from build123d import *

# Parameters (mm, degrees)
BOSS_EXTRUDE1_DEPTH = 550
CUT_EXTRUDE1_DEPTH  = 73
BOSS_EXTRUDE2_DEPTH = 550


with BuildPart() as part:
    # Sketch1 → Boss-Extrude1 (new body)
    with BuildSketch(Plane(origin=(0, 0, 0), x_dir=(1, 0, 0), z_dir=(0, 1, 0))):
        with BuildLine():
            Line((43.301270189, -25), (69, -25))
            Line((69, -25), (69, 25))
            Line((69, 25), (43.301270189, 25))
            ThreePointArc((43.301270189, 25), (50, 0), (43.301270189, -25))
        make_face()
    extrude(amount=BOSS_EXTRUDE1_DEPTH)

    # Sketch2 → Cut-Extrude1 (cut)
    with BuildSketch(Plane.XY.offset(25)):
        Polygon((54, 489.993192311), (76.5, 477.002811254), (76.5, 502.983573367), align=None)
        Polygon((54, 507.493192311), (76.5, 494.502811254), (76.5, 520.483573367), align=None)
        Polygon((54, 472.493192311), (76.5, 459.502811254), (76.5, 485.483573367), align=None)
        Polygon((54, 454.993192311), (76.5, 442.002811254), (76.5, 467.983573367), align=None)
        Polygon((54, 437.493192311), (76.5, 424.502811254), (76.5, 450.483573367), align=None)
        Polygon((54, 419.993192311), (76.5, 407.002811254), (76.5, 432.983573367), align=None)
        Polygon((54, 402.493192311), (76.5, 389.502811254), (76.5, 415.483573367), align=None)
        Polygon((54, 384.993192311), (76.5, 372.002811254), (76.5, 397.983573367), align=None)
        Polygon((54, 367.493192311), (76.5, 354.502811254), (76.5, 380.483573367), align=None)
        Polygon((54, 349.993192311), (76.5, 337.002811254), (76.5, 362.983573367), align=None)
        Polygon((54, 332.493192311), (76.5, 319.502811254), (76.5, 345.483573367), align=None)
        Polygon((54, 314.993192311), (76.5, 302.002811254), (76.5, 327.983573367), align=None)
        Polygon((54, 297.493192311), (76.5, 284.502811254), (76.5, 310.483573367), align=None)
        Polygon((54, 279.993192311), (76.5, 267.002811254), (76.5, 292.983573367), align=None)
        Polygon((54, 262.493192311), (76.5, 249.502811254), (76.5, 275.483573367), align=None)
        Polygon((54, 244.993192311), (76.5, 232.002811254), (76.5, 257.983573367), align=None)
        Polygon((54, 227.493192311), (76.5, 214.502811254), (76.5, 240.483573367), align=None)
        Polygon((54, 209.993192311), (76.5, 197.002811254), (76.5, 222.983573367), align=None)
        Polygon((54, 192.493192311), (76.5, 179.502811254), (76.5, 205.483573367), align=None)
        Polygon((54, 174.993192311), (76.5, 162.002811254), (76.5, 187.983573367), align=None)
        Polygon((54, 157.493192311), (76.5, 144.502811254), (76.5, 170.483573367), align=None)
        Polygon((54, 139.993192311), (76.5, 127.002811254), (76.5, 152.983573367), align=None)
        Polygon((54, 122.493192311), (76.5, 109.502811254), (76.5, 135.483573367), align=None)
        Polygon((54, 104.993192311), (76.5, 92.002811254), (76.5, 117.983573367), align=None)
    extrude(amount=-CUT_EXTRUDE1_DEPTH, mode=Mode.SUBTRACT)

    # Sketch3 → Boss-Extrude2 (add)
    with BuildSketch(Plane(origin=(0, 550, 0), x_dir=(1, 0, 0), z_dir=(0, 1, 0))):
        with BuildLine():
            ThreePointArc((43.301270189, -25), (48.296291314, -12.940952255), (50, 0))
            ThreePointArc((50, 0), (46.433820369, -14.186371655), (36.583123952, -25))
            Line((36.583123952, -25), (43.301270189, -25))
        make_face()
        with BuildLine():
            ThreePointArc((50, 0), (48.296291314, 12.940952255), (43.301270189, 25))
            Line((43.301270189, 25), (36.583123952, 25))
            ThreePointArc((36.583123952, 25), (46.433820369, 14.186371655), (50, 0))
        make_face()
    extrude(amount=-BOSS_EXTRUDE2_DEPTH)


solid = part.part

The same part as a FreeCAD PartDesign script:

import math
import FreeCAD as App
import Part
import Sketcher
from FreeCAD import Vector
Q = App.Units.Quantity


def add_polygon(sketch, points):
    """Adds a closed chain of lines whose ends are joined by coincident constraints."""
    first, n = sketch.GeometryCount, len(points)
    for a, b in zip(points, points[1:] + points[:1]):
        sketch.addGeometry(Part.LineSegment(App.Vector(*a, 0), App.Vector(*b, 0)), False)
    for i in range(n):
        sketch.addConstraint(Sketcher.Constraint("Coincident", first + i, 2, first + (i + 1) % n, 1))

doc = App.newDocument("Part")
params = doc.addObject("Spreadsheet::Sheet", "Params")
for row, (alias, value) in enumerate([
    ("sketch1_radius", "50 mm"),
    ("sketch1_height", "50 mm"),
    ("pad1_length", "550 mm"),
    ("pocket1_length", "73 mm"),
    ("sketch3_radius", "50 mm"),
    ("sketch3_radius2", "30 mm"),
    ("pad2_length", "550 mm"),
], start=1):
    params.set(f"A{row}", alias)
    params.set(f"B{row}", "=" + value)
    params.setAlias(f"B{row}", alias)

body = doc.addObject("PartDesign::Body", "Body")

sketch1 = doc.addObject("Sketcher::SketchObject", "Sketch")
body.addObject(sketch1)
sketch1.AttachmentSupport = (doc.XZ_Plane, [""])
sketch1.MapMode = "FlatFace"
sketch1.addGeometry([
    Part.LineSegment(Vector(43, 25, 0), Vector(69, 25, 0)),
    Part.LineSegment(Vector(69, 25, 0), Vector(69, -25, 0)),
    Part.LineSegment(Vector(69, -25, 0), Vector(43, -25, 0)),
    Part.ArcOfCircle(Part.Circle(Vector(0, 0, 0), Vector(0, 0, 1), 50), math.radians(-30), math.radians(30)),
], False)
sketch1.addConstraint([
    Sketcher.Constraint("Coincident", 0, 2, 1, 1),
    Sketcher.Constraint("Coincident", 1, 2, 2, 1),
    Sketcher.Constraint("Coincident", 2, 2, 3, 1),
    Sketcher.Constraint("Coincident", 3, 2, 0, 1),
    Sketcher.Constraint("Horizontal", 0),
    Sketcher.Constraint("Vertical", 1),
    Sketcher.Constraint("Horizontal", 2),
    Sketcher.Constraint("Coincident", 3, 3, -1, 1),
    Sketcher.Constraint("Vertical", 2, 2, 3, 2),
    Sketcher.Constraint("Radius", 3, Q("50 mm")),
    Sketcher.Constraint("DistanceY", 1, 2, 1, 1, Q("50 mm")),
    Sketcher.Constraint("DistanceX", -1, 1, 0, 2, Q("69 mm")),
])
sketch1.setExpression("Constraints[9]", "Params.sketch1_radius")
sketch1.setExpression("Constraints[10]", "Params.sketch1_height")
pad1 = doc.addObject("PartDesign::Pad", "Pad")
body.addObject(pad1)
pad1.Profile = sketch1
pad1.setExpression("Length", "Params.pad1_length")
pad1.Reversed = True

sketch2 = doc.addObject("Sketcher::SketchObject", "Sketch001")
body.addObject(sketch2)
sketch2.AttachmentSupport = (doc.XY_Plane, [""])
sketch2.MapMode = "FlatFace"
sketch2.AttachmentOffset = App.Placement(Vector(0, 0, 25), App.Rotation())
add_polygon(sketch2, [(76, 520), (54, 507), (69, 499), (54, 490), (69, 481), (54, 472), (69, 464), (54, 455), (69, 446), (54, 437), (69, 429), (54, 420), (69, 411), (54, 402), (69, 394), (54, 385), (69, 376), (54, 367), (69, 359), (54, 350), (69, 341), (54, 332), (69, 324), (54, 315), (69, 306), (54, 297), (69, 289), (54, 280), (69, 271), (54, 262), (69, 254), (54, 245), (69, 236), (54, 227), (69, 219), (54, 210), (69, 201), (54, 192), (69, 184), (54, 175), (69, 166), (54, 157), (69, 149), (54, 140), (69, 131), (54, 122), (69, 114), (54, 105), (76, 92)])
sketch2.addConstraint([
    Sketcher.Constraint("Vertical", 48),
    Sketcher.Constraint("Parallel", 0, 2),
    Sketcher.Constraint("Parallel", 1, 3),
    Sketcher.Constraint("Parallel", 2, 4),
    Sketcher.Constraint("Parallel", 3, 5),
    Sketcher.Constraint("Parallel", 4, 6),
    Sketcher.Constraint("Parallel", 5, 7),
    Sketcher.Constraint("Parallel", 6, 8),
    Sketcher.Constraint("Parallel", 7, 9),
    Sketcher.Constraint("Parallel", 8, 10),
    Sketcher.Constraint("Parallel", 9, 11),
    Sketcher.Constraint("Parallel", 10, 12),
    Sketcher.Constraint("Parallel", 11, 13),
    Sketcher.Constraint("Parallel", 12, 14),
    Sketcher.Constraint("Parallel", 13, 15),
    Sketcher.Constraint("Parallel", 14, 16),
    Sketcher.Constraint("Parallel", 15, 17),
    Sketcher.Constraint("Parallel", 16, 18),
    Sketcher.Constraint("Parallel", 17, 19),
    Sketcher.Constraint("Parallel", 18, 20),
    Sketcher.Constraint("Parallel", 19, 21),
    Sketcher.Constraint("Parallel", 20, 22),
    Sketcher.Constraint("Parallel", 21, 23),
    Sketcher.Constraint("Parallel", 22, 24),
    Sketcher.Constraint("Parallel", 23, 25),
    Sketcher.Constraint("Parallel", 24, 26),
    Sketcher.Constraint("Parallel", 25, 27),
    Sketcher.Constraint("Parallel", 26, 28),
    Sketcher.Constraint("Parallel", 27, 29),
    Sketcher.Constraint("Parallel", 28, 30),
    Sketcher.Constraint("Parallel", 29, 31),
    Sketcher.Constraint("Parallel", 30, 32),
    Sketcher.Constraint("Parallel", 31, 33),
    Sketcher.Constraint("Parallel", 32, 34),
    Sketcher.Constraint("Parallel", 33, 35),
    Sketcher.Constraint("Parallel", 34, 36),
    Sketcher.Constraint("Parallel", 35, 37),
    Sketcher.Constraint("Parallel", 36, 38),
    Sketcher.Constraint("Parallel", 37, 39),
    Sketcher.Constraint("Parallel", 38, 40),
    Sketcher.Constraint("Parallel", 39, 41),
    Sketcher.Constraint("Parallel", 40, 42),
    Sketcher.Constraint("Parallel", 41, 43),
    Sketcher.Constraint("Parallel", 42, 44),
    Sketcher.Constraint("Parallel", 43, 45),
    Sketcher.Constraint("Parallel", 44, 46),
    Sketcher.Constraint("Parallel", 45, 47),
    Sketcher.Constraint("Vertical", 0, 2, 2, 2),
    Sketcher.Constraint("Vertical", 1, 2, 3, 2),
    Sketcher.Constraint("Vertical", 2, 2, 4, 2),
    Sketcher.Constraint("Vertical", 3, 2, 5, 2),
    Sketcher.Constraint("Vertical", 4, 2, 6, 2),
    Sketcher.Constraint("Vertical", 5, 2, 7, 2),
    Sketcher.Constraint("Vertical", 6, 2, 8, 2),
    Sketcher.Constraint("Vertical", 7, 2, 9, 2),
    Sketcher.Constraint("Vertical", 8, 2, 10, 2),
    Sketcher.Constraint("Vertical", 9, 2, 11, 2),
    Sketcher.Constraint("Vertical", 10, 2, 12, 2),
    Sketcher.Constraint("Vertical", 11, 2, 13, 2),
    Sketcher.Constraint("Vertical", 12, 2, 14, 2),
    Sketcher.Constraint("Vertical", 13, 2, 15, 2),
    Sketcher.Constraint("Vertical", 14, 2, 16, 2),
    Sketcher.Constraint("Vertical", 15, 2, 17, 2),
    Sketcher.Constraint("Vertical", 16, 2, 18, 2),
    Sketcher.Constraint("Vertical", 17, 2, 19, 2),
    Sketcher.Constraint("Vertical", 18, 2, 20, 2),
    Sketcher.Constraint("Vertical", 19, 2, 21, 2),
    Sketcher.Constraint("Vertical", 20, 2, 22, 2),
    Sketcher.Constraint("Vertical", 21, 2, 23, 2),
    Sketcher.Constraint("Vertical", 22, 2, 24, 2),
    Sketcher.Constraint("Vertical", 23, 2, 25, 2),
    Sketcher.Constraint("Vertical", 24, 2, 26, 2),
    Sketcher.Constraint("Vertical", 25, 2, 27, 2),
    Sketcher.Constraint("Vertical", 26, 2, 28, 2),
    Sketcher.Constraint("Vertical", 27, 2, 29, 2),
    Sketcher.Constraint("Vertical", 28, 2, 30, 2),
    Sketcher.Constraint("Vertical", 29, 2, 31, 2),
    Sketcher.Constraint("Vertical", 30, 2, 32, 2),
    Sketcher.Constraint("Vertical", 31, 2, 33, 2),
    Sketcher.Constraint("Vertical", 32, 2, 34, 2),
    Sketcher.Constraint("Vertical", 33, 2, 35, 2),
    Sketcher.Constraint("Vertical", 34, 2, 36, 2),
    Sketcher.Constraint("Vertical", 35, 2, 37, 2),
    Sketcher.Constraint("Vertical", 36, 2, 38, 2),
    Sketcher.Constraint("Vertical", 37, 2, 39, 2),
    Sketcher.Constraint("Vertical", 38, 2, 40, 2),
    Sketcher.Constraint("Vertical", 39, 2, 41, 2),
    Sketcher.Constraint("Vertical", 40, 2, 42, 2),
    Sketcher.Constraint("Vertical", 41, 2, 43, 2),
    Sketcher.Constraint("Vertical", 42, 2, 44, 2),
    Sketcher.Constraint("Vertical", 43, 2, 45, 2),
    Sketcher.Constraint("Vertical", 44, 2, 46, 2),
    Sketcher.Constraint("Equal", 1, 2),
    Sketcher.Constraint("Angle", 0, Q("-150 deg")),
    Sketcher.Constraint("DistanceX", -1, 1, 0, 2, Q("54 mm")),
    Sketcher.Constraint("DistanceY", 4, 2, 0, 2, Q("35 mm")),
    Sketcher.Constraint("DistanceX", -1, 1, 47, 2, Q("76.5 mm")),
    Sketcher.Constraint("DistanceY", -1, 1, 47, 2, Q("92.002811 mm")),
])
pocket1 = doc.addObject("PartDesign::Pocket", "Pocket")
body.addObject(pocket1)
pocket1.Profile = sketch2
pocket1.setExpression("Length", "Params.pocket1_length")

sketch3 = doc.addObject("Sketcher::SketchObject", "Sketch002")
body.addObject(sketch3)
sketch3.AttachmentSupport = (doc.XZ_Plane, [""])
sketch3.MapMode = "FlatFace"
sketch3.AttachmentOffset = App.Placement(Vector(0, 0, -550), App.Rotation())
sketch3.addGeometry([
    Part.ArcOfCircle(Part.Circle(Vector(0, 0, 0), Vector(0, 0, 1), 50), math.radians(0), math.radians(30)),
    Part.ArcOfCircle(Part.Circle(Vector(20, 0, 0), Vector(0, 0, 1), 30), math.radians(0), math.radians(56)),
    Part.LineSegment(Vector(37, 25, 0), Vector(43, 25, 0)),
    Part.ArcOfCircle(Part.Circle(Vector(0, 0, 0), Vector(0, 0, 1), 50), math.radians(-30), math.radians(0)),
    Part.LineSegment(Vector(43, -25, 0), Vector(37, -25, 0)),
    Part.ArcOfCircle(Part.Circle(Vector(20, 0, 0), Vector(0, 0, 1), 30), math.radians(-56), math.radians(0)),
], False)
sketch3.addConstraint([
    Sketcher.Constraint("Tangent", 0, 1, 1, 1),
    Sketcher.Constraint("Coincident", 1, 2, 2, 1),
    Sketcher.Constraint("Coincident", 2, 2, 0, 2),
    Sketcher.Constraint("Coincident", 3, 1, 4, 1),
    Sketcher.Constraint("Coincident", 4, 2, 5, 1),
    Sketcher.Constraint("Tangent", 5, 2, 3, 2),
    Sketcher.Constraint("Horizontal", 2),
    Sketcher.Constraint("Horizontal", 4),
    Sketcher.Constraint("Coincident", 0, 3, -1, 1),
    Sketcher.Constraint("Coincident", 3, 3, -1, 1),
    Sketcher.Constraint("Coincident", 5, 3, 1, 3),
    Sketcher.Constraint("Equal", 0, 3),
    Sketcher.Constraint("Symmetric", 1, 2, 4, 2, -1),
    Sketcher.Constraint("Radius", 0, Q("50 mm")),
    Sketcher.Constraint("Radius", 1, Q("30 mm")),
    Sketcher.Constraint("DistanceY", -1, 1, 1, 2, Q("25 mm")),
])
sketch3.setExpression("Constraints[13]", "Params.sketch3_radius")
sketch3.setExpression("Constraints[14]", "Params.sketch3_radius2")
pad2 = doc.addObject("PartDesign::Pad", "Pad001")
body.addObject(pad2)
pad2.Profile = sketch3
pad2.setExpression("Length", "Params.pad2_length")

doc.recompute()
